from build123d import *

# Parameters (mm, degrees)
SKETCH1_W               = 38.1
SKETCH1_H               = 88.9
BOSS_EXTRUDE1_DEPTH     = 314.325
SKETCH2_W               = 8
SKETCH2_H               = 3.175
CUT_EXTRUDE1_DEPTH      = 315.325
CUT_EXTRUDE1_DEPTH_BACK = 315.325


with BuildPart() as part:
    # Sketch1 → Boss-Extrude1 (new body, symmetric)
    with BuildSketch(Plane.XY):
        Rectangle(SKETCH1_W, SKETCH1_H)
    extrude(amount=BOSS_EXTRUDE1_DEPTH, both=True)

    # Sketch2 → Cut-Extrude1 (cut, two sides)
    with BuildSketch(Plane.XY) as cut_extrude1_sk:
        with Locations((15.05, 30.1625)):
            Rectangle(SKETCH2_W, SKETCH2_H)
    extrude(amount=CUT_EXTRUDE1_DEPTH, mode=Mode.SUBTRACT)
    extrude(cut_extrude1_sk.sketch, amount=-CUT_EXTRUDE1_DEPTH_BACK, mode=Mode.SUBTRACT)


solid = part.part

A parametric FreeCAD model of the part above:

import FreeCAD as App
import Part
import Sketcher

V = App.Vector
Q = App.Units.Quantity


def add_polygon(sketch, points):
    """Adds a closed chain of lines whose ends are joined by coincident constraints."""
    first, n = sketch.GeometryCount, len(points)
    for a, b in zip(points, points[1:] + points[:1]):
        sketch.addGeometry(Part.LineSegment(App.Vector(*a, 0), App.Vector(*b, 0)), False)
    for i in range(n):
        sketch.addConstraint(Sketcher.Constraint("Coincident", first + i, 2, first + (i + 1) % n, 1))

doc = App.newDocument("Part")
body = doc.addObject("PartDesign::Body", "Body")

sketch1 = body.newObject("Sketcher::SketchObject", "Sketch")
sketch1.AttachmentSupport = (doc.getObject("XY_Plane"), [""])
sketch1.MapMode = "FlatFace"
add_polygon(sketch1, [(-19.05, 44.45), (-19.05, -44.45), (19.05, -44.45), (19.05, 44.45)])
sketch1.addConstraint(Sketcher.Constraint("Vertical", 0))
sketch1.addConstraint(Sketcher.Constraint("Horizontal", 1))
sketch1.addConstraint(Sketcher.Constraint("Vertical", 2))
sketch1.addConstraint(Sketcher.Constraint("Horizontal", 3))
sketch1.addConstraint(Sketcher.Constraint("Symmetric", 0, 2, 2, 2, -1, 1))
sketch1.addConstraint(Sketcher.Constraint("DistanceX", 1, 1, 1, 2, Q("1.5 in")))
sketch1.addConstraint(Sketcher.Constraint("DistanceY", 0, 2, 0, 1, Q("3.5 in")))
pad1 = body.newObject("PartDesign::Pad", "Pad")
pad1.Profile = sketch1
pad1.Length = Q("24.75 in")
pad1.Midplane = True

sketch2 = body.newObject("Sketcher::SketchObject", "Sketch001")
sketch2.AttachmentSupport = (doc.getObject("XY_Plane"), [""])
sketch2.MapMode = "FlatFace"
add_polygon(sketch2, [(11.05, 31.75), (11.05, 28.575), (19.05, 28.575), (19.05, 31.75)])
sketch2.addConstraint(Sketcher.Constraint("Vertical", 0))
sketch2.addConstraint(Sketcher.Constraint("Horizontal", 1))
sketch2.addConstraint(Sketcher.Constraint("Vertical", 2))
sketch2.addConstraint(Sketcher.Constraint("Horizontal", 3))
sketch2.addConstraint(Sketcher.Constraint("DistanceY", 0, 2, 0, 1, Q("0.125 in")))
sketch2.addConstraint(Sketcher.Constraint("DistanceX", -1, 1, 1, 2, Q("0.75 in")))
sketch2.addConstraint(Sketcher.Constraint("DistanceY", -1, 1, 2, 2, Q("1.25 in")))
sketch2.addConstraint(Sketcher.Constraint("DistanceX", 1, 1, 1, 2, Q("8 mm")))
pocket1 = body.newObject("PartDesign::Pocket", "Pocket")
pocket1.Profile = sketch2
pocket1.Type = "ThroughAll"
pocket1.Midplane = True

doc.recompute()
